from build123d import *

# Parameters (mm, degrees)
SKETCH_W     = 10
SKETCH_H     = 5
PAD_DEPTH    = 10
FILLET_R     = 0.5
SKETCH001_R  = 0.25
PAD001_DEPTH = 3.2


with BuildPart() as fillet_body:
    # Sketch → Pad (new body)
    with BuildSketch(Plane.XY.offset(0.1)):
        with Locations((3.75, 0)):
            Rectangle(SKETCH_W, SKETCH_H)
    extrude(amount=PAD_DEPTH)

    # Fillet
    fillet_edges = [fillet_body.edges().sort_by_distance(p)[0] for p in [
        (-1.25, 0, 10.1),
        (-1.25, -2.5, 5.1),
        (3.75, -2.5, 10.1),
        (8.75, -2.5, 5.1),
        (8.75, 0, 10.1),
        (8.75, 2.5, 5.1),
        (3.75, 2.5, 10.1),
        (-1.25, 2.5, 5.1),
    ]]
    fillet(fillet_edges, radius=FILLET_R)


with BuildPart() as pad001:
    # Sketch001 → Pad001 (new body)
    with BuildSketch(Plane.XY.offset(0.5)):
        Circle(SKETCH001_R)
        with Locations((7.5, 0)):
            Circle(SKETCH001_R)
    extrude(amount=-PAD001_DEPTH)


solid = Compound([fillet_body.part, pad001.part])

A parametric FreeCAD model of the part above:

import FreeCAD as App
import Part
import Sketcher

V = App.Vector


def edges_at(feature, points):
    """Names of the edges that pass closest to the given points."""
    edges = feature.Shape.Edges
    near = lambda p: min(range(len(edges)), key=lambda i: edges[i].distToShape(Part.Vertex(*p))[0])
    return sorted({f"Edge{near(p) + 1}" for p in points})

doc = App.newDocument("Part")
body = doc.addObject("PartDesign::Body", "Body")

sketch1 = body.newObject("Sketcher::SketchObject", "Sketch")
sketch1.AttachmentSupport = (doc.getObject("XY_Plane"), [""])
sketch1.MapMode = "FlatFace"
sketch1.AttachmentOffset = App.Placement(V(0, 0, 0.1), App.Rotation())
sketch1.addGeometry([
    Part.LineSegment(V(-1, 2, 0), V(-1, -2, 0)),
    Part.LineSegment(V(-1, -2, 0), V(9, -2, 0)),
    Part.LineSegment(V(9, -2, 0), V(9, 2, 0)),
    Part.LineSegment(V(9, 2, 0), V(-1, 2, 0)),
], False)
sketch1.addConstraint([
    Sketcher.Constraint("Coincident", 0, 2, 1, 1),
    Sketcher.Constraint("Coincident", 1, 2, 2, 1),
    Sketcher.Constraint("Coincident", 2, 2, 3, 1),
    Sketcher.Constraint("Coincident", 3, 2, 0, 1),
    Sketcher.Constraint("Vertical", 0),
    Sketcher.Constraint("Horizontal", 1),
    Sketcher.Constraint("Vertical", 2),
    Sketcher.Constraint("Horizontal", 3),
    Sketcher.Constraint("DistanceX", 1, 1, 1, 2, 10.0),
    Sketcher.Constraint("DistanceY", 0, 2, 0, 1, 5.0),
    Sketcher.Constraint("DistanceY", 0, 2, -1, 1, 2.5),
    Sketcher.Constraint("DistanceX", 0, 2, -1, 1, 1.25),
])
pad1 = body.newObject("PartDesign::Pad", "Pad")
pad1.Profile = sketch1
pad1.Length = 10
doc.recompute()

fillet = body.newObject("PartDesign::Fillet", "Fillet")
fillet.Base = (pad1, edges_at(pad1, [
    (-1.25, 0, 10.1),
    (-1.25, -2.5, 5.1),
    (3.75, -2.5, 10.1),
    (8.75, -2.5, 5.1),
    (8.75, 0, 10.1),
    (8.75, 2.5, 5.1),
    (3.75, 2.5, 10.1),
    (-1.25, 2.5, 5.1),
]))
fillet.Radius = 0.5
body2 = doc.addObject("PartDesign::Body", "Body001")
body2.AllowCompound = True

sketch2 = body2.newObject("Sketcher::SketchObject", "Sketch001")
sketch2.AttachmentSupport = (doc.getObject("XY_Plane001"), [""])
sketch2.MapMode = "FlatFace"
sketch2.AttachmentOffset = App.Placement(V(0, 0, 0.5), App.Rotation())
sketch2.addGeometry([
    Part.Circle(V(0, 0, 0), V(0, 0, 1), 0.25),
    Part.Circle(V(7.5, 0, 0), V(0, 0, 1), 0.25),
], False)
sketch2.addConstraint([
    Sketcher.Constraint("Coincident", 0, 3, -1, 1),
    Sketcher.Constraint("Equal", 0, 1),
    Sketcher.Constraint("PointOnObject", 1, 3, -1),
    Sketcher.Constraint("Diameter", 0, 0.5),
    Sketcher.Constraint("DistanceX", -1, 1, 1, 3, 7.5),
])
pad2 = body2.newObject("PartDesign::Pad", "Pad001")
pad2.Profile = sketch2
pad2.Length = 3.2
pad2.Reversed = True

doc.recompute()
